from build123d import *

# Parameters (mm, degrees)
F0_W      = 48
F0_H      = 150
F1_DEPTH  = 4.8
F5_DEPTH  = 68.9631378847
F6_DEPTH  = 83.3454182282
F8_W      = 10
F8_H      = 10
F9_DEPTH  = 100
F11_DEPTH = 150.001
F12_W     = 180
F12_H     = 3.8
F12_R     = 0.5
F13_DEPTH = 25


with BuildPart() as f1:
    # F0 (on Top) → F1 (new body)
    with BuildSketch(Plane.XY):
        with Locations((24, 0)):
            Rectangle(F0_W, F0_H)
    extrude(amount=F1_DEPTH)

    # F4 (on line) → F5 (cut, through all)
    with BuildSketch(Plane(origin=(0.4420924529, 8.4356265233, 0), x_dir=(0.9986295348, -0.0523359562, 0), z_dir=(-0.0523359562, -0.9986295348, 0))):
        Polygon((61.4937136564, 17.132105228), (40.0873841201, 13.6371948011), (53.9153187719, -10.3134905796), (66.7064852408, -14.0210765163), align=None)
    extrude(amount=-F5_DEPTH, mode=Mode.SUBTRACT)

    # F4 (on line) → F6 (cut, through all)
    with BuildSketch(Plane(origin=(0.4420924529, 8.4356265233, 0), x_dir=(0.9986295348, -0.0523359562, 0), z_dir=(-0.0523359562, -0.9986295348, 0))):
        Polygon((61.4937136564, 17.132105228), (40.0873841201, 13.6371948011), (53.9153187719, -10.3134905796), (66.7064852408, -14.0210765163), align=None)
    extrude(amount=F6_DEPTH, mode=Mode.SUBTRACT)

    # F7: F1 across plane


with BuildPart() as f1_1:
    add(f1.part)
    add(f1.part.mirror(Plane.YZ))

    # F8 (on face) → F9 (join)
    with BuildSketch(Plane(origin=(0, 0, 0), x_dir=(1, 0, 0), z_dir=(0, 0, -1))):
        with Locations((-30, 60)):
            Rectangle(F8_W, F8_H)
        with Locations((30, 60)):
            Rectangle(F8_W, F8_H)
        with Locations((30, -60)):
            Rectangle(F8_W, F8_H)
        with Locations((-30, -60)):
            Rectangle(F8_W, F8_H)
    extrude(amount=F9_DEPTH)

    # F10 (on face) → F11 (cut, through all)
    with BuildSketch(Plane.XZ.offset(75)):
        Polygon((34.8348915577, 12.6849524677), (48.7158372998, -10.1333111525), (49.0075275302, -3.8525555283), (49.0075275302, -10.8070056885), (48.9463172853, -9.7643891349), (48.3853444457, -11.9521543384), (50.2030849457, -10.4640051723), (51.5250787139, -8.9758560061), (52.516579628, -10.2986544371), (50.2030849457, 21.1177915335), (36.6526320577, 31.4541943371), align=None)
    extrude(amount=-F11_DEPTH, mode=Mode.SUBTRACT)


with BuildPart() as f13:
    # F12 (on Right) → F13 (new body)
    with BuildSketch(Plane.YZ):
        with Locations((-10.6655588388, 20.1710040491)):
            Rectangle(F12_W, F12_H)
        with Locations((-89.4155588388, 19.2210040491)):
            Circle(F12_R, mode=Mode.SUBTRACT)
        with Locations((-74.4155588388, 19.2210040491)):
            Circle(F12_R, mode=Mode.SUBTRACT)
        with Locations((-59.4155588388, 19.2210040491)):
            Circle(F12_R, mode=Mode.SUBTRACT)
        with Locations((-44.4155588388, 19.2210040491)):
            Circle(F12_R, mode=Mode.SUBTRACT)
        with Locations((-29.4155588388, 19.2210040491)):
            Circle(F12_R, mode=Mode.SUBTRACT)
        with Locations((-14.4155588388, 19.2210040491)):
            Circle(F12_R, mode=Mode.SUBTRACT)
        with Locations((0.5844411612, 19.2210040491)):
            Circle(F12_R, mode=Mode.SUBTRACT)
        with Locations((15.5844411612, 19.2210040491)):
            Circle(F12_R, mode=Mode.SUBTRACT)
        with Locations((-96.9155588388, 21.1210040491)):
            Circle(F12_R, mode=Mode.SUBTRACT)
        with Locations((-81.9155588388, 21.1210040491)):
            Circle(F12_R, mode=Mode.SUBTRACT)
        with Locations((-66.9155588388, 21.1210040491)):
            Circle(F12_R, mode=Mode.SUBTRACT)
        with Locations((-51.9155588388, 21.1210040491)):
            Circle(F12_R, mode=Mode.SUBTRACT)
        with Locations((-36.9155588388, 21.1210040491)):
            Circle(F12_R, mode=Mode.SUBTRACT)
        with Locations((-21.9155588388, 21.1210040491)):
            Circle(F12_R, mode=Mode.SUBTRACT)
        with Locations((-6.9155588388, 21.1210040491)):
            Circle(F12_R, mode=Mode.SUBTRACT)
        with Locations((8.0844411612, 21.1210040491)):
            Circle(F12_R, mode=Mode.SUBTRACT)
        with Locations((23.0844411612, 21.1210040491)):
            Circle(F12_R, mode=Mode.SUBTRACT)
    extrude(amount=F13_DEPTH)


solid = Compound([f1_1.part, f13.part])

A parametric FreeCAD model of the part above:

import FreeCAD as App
import Part
import Sketcher

V = App.Vector
Q = App.Units.Quantity


def add_polygon(sketch, points):
    """Adds a closed chain of lines whose ends are joined by coincident constraints."""
    first, n = sketch.GeometryCount, len(points)
    for a, b in zip(points, points[1:] + points[:1]):
        sketch.addGeometry(Part.LineSegment(App.Vector(*a, 0), App.Vector(*b, 0)), False)
    for i in range(n):
        sketch.addConstraint(Sketcher.Constraint("Coincident", first + i, 2, first + (i + 1) % n, 1))

doc = App.newDocument("Part")
body = doc.addObject("PartDesign::Body", "Body")

sketch1 = body.newObject("Sketcher::SketchObject", "Sketch")
sketch1.AttachmentSupport = (doc.getObject("XY_Plane"), [""])
sketch1.MapMode = "FlatFace"
add_polygon(sketch1, [(0, 75), (0, -75), (48, -75), (48, 75)])
sketch1.addConstraint(Sketcher.Constraint("Vertical", 0))
sketch1.addConstraint(Sketcher.Constraint("Horizontal", 1))
sketch1.addConstraint(Sketcher.Constraint("Vertical", 2))
sketch1.addConstraint(Sketcher.Constraint("Horizontal", 3))
sketch1.addConstraint(Sketcher.Constraint("Symmetric", 0, 2, 3, 2, -1, 1))
sketch1.addConstraint(Sketcher.Constraint("DistanceX", 1, 1, 1, 2, Q("48 mm")))
sketch1.addConstraint(Sketcher.Constraint("DistanceY", 0, 2, 0, 1, Q("150 mm")))
pad1 = body.newObject("PartDesign::Pad", "Pad")
pad1.Profile = sketch1
pad1.Length = 4.8

sketch2 = body.newObject("Sketcher::SketchObject", "Sketch001")
sketch2.Placement = App.Placement(V(0.442092, 8.435627, 0), App.Rotation(V(0.998629535, -0.052335956, 0), V(0, 0, 1), V(-0.052335956, -0.998629535, 0), "ZXY"))
add_polygon(sketch2, [(61, 17), (40, 14), (54, -10), (67, -14)])
sketch2.addConstraint(Sketcher.Constraint("Angle", 1, Q("-60 deg")))
sketch2.addConstraint(Sketcher.Constraint("DistanceX", 0, 2, 2, 2, Q("26.619101 mm")))
sketch2.addConstraint(Sketcher.Constraint("Distance", 1, Q("27.655869 mm")))
sketch2.addConstraint(Sketcher.Constraint("Distance", 3, Q("31.58629 mm")))
sketch2.addConstraint(Sketcher.Constraint("DistanceX", -1, 1, 1, 2, Q("53.915319 mm")))
sketch2.addConstraint(Sketcher.Constraint("DistanceY", 1, 2, -1, 1, Q("10.313491 mm")))
sketch2.addConstraint(Sketcher.Constraint("DistanceY", 2, 2, 0, 2, Q("27.658271 mm")))
sketch2.addConstraint(Sketcher.Constraint("DistanceX", 0, 2, 3, 2, Q("21.40633 mm")))
pocket1 = body.newObject("PartDesign::Pocket", "Pocket")
pocket1.Profile = sketch2
pocket1.Type = "ThroughAll"

sketch3 = body.newObject("Sketcher::SketchObject", "Sketch002")
sketch3.Placement = App.Placement(V(0.442092, 8.435627, 0), App.Rotation(V(0.998629535, -0.052335956, 0), V(0, 0, 1), V(-0.052335956, -0.998629535, 0), "ZXY"))
add_polygon(sketch3, [(61, 17), (40, 14), (54, -10), (67, -14)])
sketch3.addConstraint(Sketcher.Constraint("Angle", 1, Q("-60 deg")))
sketch3.addConstraint(Sketcher.Constraint("DistanceX", 0, 2, 2, 2, Q("26.619101 mm")))
sketch3.addConstraint(Sketcher.Constraint("Distance", 1, Q("27.655869 mm")))
sketch3.addConstraint(Sketcher.Constraint("Distance", 3, Q("31.58629 mm")))
sketch3.addConstraint(Sketcher.Constraint("DistanceX", -1, 1, 1, 2, Q("53.915319 mm")))
sketch3.addConstraint(Sketcher.Constraint("DistanceY", 1, 2, -1, 1, Q("10.313491 mm")))
sketch3.addConstraint(Sketcher.Constraint("DistanceY", 2, 2, 0, 2, Q("27.658271 mm")))
sketch3.addConstraint(Sketcher.Constraint("DistanceX", 0, 2, 3, 2, Q("21.40633 mm")))
pocket2 = body.newObject("PartDesign::Pocket", "Pocket001")
pocket2.Profile = sketch3
pocket2.Type = "ThroughAll"
pocket2.Reversed = True
body2 = doc.addObject("PartDesign::Body", "Body001")
doc.recompute()

body2.BaseFeature = body
doc.recompute()

mirroring = doc.addObject("Part::Mirroring", "Mirroring")
mirroring.Source = body
mirroring.Base = V(0, 0, 0)
mirroring.Normal = V(1, 0, 0)
body3 = doc.addObject("PartDesign::Body", "Body002")
body3.BaseFeature = mirroring
boolean = body2.newObject("PartDesign::Boolean", "Boolean")
boolean.Type = "Fuse"
boolean.addObjects([body3])
doc.recompute()

sketch4 = body2.newObject("Sketcher::SketchObject", "Sketch003")
sketch4.AttachmentSupport = (doc.getObject("XY_Plane001"), [""])
sketch4.MapMode = "FlatFace"
add_polygon(sketch4, [(-35, -65), (-35, -55), (-25, -55), (-25, -65)])
add_polygon(sketch4, [(25, -65), (25, -55), (35, -55), (35, -65)])
add_polygon(sketch4, [(25, 55), (25, 65), (35, 65), (35, 55)])
add_polygon(sketch4, [(-35, 55), (-35, 65), (-25, 65), (-25, 55)])
sketch4.addConstraint(Sketcher.Constraint("Vertical", 0))
sketch4.addConstraint(Sketcher.Constraint("Horizontal", 1))
sketch4.addConstraint(Sketcher.Constraint("Vertical", 2))
sketch4.addConstraint(Sketcher.Constraint("Horizontal", 3))
sketch4.addConstraint(Sketcher.Constraint("Vertical", 4))
sketch4.addConstraint(Sketcher.Constraint("Horizontal", 5))
sketch4.addConstraint(Sketcher.Constraint("Vertical", 6))
sketch4.addConstraint(Sketcher.Constraint("Horizontal", 7))
sketch4.addConstraint(Sketcher.Constraint("Vertical", 8))
sketch4.addConstraint(Sketcher.Constraint("Horizontal", 9))
sketch4.addConstraint(Sketcher.Constraint("Vertical", 10))
sketch4.addConstraint(Sketcher.Constraint("Horizontal", 11))
sketch4.addConstraint(Sketcher.Constraint("Vertical", 12))
sketch4.addConstraint(Sketcher.Constraint("Horizontal", 13))
sketch4.addConstraint(Sketcher.Constraint("Vertical", 14))
sketch4.addConstraint(Sketcher.Constraint("Horizontal", 15))
sketch4.addConstraint(Sketcher.Constraint("Symmetric", 2, 2, 8, 2, -1, 1))
sketch4.addConstraint(Sketcher.Constraint("Symmetric", 0, 2, 10, 2, -1, 1))
sketch4.addConstraint(Sketcher.Constraint("Symmetric", 6, 2, 12, 2, -1, 1))
sketch4.addConstraint(Sketcher.Constraint("Symmetric", 4, 2, 14, 2, -1, 1))
sketch4.addConstraint(Sketcher.Constraint("Symmetric", 1, 2, 4, 2, -2))
sketch4.addConstraint(Sketcher.Constraint("Symmetric", 3, 2, 6, 2, -2))
sketch4.addConstraint(Sketcher.Constraint("Equal", 15, 0))
sketch4.addConstraint(Sketcher.Constraint("DistanceX", 1, 1, 1, 2, Q("10 mm")))
sketch4.addConstraint(Sketcher.Constraint("DistanceX", 0, 2, -1, 1, Q("35 mm")))
sketch4.addConstraint(Sketcher.Constraint("DistanceY", 0, 2, -1, 1, Q("55 mm")))
pad2 = body2.newObject("PartDesign::Pad", "Pad001")
pad2.Profile = sketch4
pad2.Length = 100
pad2.Reversed = True

sketch5 = body2.newObject("Sketcher::SketchObject", "Sketch004")
sketch5.AttachmentSupport = (doc.getObject("XZ_Plane001"), [""])
sketch5.MapMode = "FlatFace"
sketch5.AttachmentOffset = App.Placement(V(0, 0, 75), App.Rotation())
add_polygon(sketch5, [(34.8, 12.7), (48.7, -10.1), (49, -3.9), (49, -10.8), (48.9, -9.8), (48.4, -12), (50.2, -10.5), (51.5, -9), (52.5, -10.3), (50.2, 21.1), (36.7, 31.5)])
sketch5.addConstraint(Sketcher.Constraint("Vertical", 2))
sketch5.addConstraint(Sketcher.Constraint("Vertical", 5, 2, 8, 2))
sketch5.addConstraint(Sketcher.Constraint("DistanceY", 2, 2, 5, 2, Q("0.343001 mm")))
sketch5.addConstraint(Sketcher.Constraint("DistanceY", 2, 2, 2, 1, Q("6.95445 mm")))
sketch5.addConstraint(Sketcher.Constraint("DistanceY", 4, 2, 1, 2, Q("8.099599 mm")))
sketch5.addConstraint(Sketcher.Constraint("DistanceY", 4, 2, 6, 2, Q("2.976298 mm")))
sketch5.addConstraint(Sketcher.Constraint("DistanceX", 6, 2, 7, 2, Q("0.991501 mm")))
sketch5.addConstraint(Sketcher.Constraint("DistanceY", 7, 2, 6, 2, Q("1.322798 mm")))
sketch5.addConstraint(Sketcher.Constraint("Distance", 3, Q("1.044412 mm")))
sketch5.addConstraint(Sketcher.Constraint("Distance", 4, Q("2.258541 mm")))
sketch5.addConstraint(Sketcher.Constraint("Distance", 6, Q("1.990541 mm")))
sketch5.addConstraint(Sketcher.Constraint("Distance", 9, Q("17.04277 mm")))
sketch5.addConstraint(Sketcher.Constraint("DistanceY", 0, 2, -1, 1, Q("10.133311 mm")))
sketch5.addConstraint(Sketcher.Constraint("DistanceY", 3, 2, -1, 1, Q("9.764389 mm")))
sketch5.addConstraint(Sketcher.Constraint("DistanceX", -1, 1, 6, 2, Q("51.525079 mm")))
sketch5.addConstraint(Sketcher.Constraint("DistanceY", -1, 1, 8, 2, Q("21.117792 mm")))
sketch5.addConstraint(Sketcher.Constraint("DistanceX", -1, 1, 10, 2, Q("34.834892 mm")))
sketch5.addConstraint(Sketcher.Constraint("DistanceX", 0, 2, 1, 2, Q("0.29169 mm")))
sketch5.addConstraint(Sketcher.Constraint("DistanceX", 0, 2, 3, 2, Q("0.23048 mm")))
sketch5.addConstraint(Sketcher.Constraint("DistanceX", 4, 2, 5, 2, Q("1.81774 mm")))
sketch5.addConstraint(Sketcher.Constraint("DistanceY", 1, 2, 9, 2, Q("35.30675 mm")))
sketch5.addConstraint(Sketcher.Constraint("DistanceY", 10, 2, 8, 2, Q("8.432839 mm")))
pocket3 = body2.newObject("PartDesign::Pocket", "Pocket002")
pocket3.Profile = sketch5
pocket3.Type = "ThroughAll"
body4 = doc.addObject("PartDesign::Body", "Body003")

sketch6 = body4.newObject("Sketcher::SketchObject", "Sketch005")
sketch6.AttachmentSupport = (doc.getObject("YZ_Plane003"), [""])
sketch6.MapMode = "FlatFace"
add_polygon(sketch6, [(-100.7, 22.1), (-100.7, 18.3), (79.3, 18.3), (79.3, 22.1)])
sketch6.addGeometry(Part.Circle(V(-89.4, 19.2, 0), V(0, 0, 1), 0.5), False)
sketch6.addGeometry(Part.Circle(V(-74.4, 19.2, 0), V(0, 0, 1), 0.5), False)
sketch6.addGeometry(Part.Circle(V(-59.4, 19.2, 0), V(0, 0, 1), 0.5), False)
sketch6.addGeometry(Part.Circle(V(-44.4, 19.2, 0), V(0, 0, 1), 0.5), False)
sketch6.addGeometry(Part.Circle(V(-29.4, 19.2, 0), V(0, 0, 1), 0.5), False)
sketch6.addGeometry(Part.Circle(V(-14.4, 19.2, 0), V(0, 0, 1), 0.5), False)
sketch6.addGeometry(Part.Circle(V(0.6, 19.2, 0), V(0, 0, 1), 0.5), False)
sketch6.addGeometry(Part.Circle(V(15.6, 19.2, 0), V(0, 0, 1), 0.5), False)
sketch6.addGeometry(Part.Circle(V(-96.9, 21.1, 0), V(0, 0, 1), 0.5), False)
sketch6.addGeometry(Part.Circle(V(-81.9, 21.1, 0), V(0, 0, 1), 0.5), False)
sketch6.addGeometry(Part.Circle(V(-66.9, 21.1, 0), V(0, 0, 1), 0.5), False)
sketch6.addGeometry(Part.Circle(V(-51.9, 21.1, 0), V(0, 0, 1), 0.5), False)
sketch6.addGeometry(Part.Circle(V(-36.9, 21.1, 0), V(0, 0, 1), 0.5), False)
sketch6.addGeometry(Part.Circle(V(-21.9, 21.1, 0), V(0, 0, 1), 0.5), False)
sketch6.addGeometry(Part.Circle(V(-6.9, 21.1, 0), V(0, 0, 1), 0.5), False)
sketch6.addGeometry(Part.Circle(V(8.1, 21.1, 0), V(0, 0, 1), 0.5), False)
sketch6.addGeometry(Part.Circle(V(23.1, 21.1, 0), V(0, 0, 1), 0.5), False)
sketch6.addConstraint(Sketcher.Constraint("Vertical", 0))
sketch6.addConstraint(Sketcher.Constraint("Horizontal", 1))
sketch6.addConstraint(Sketcher.Constraint("Vertical", 2))
sketch6.addConstraint(Sketcher.Constraint("Horizontal", 3))
sketch6.addConstraint(Sketcher.Constraint("Equal", 4, 5))
sketch6.addConstraint(Sketcher.Constraint("Equal", 5, 6))
sketch6.addConstraint(Sketcher.Constraint("Equal", 6, 7))
sketch6.addConstraint(Sketcher.Constraint("Equal", 7, 8))
sketch6.addConstraint(Sketcher.Constraint("Equal", 8, 9))
sketch6.addConstraint(Sketcher.Constraint("Equal", 9, 10))
sketch6.addConstraint(Sketcher.Constraint("Equal", 10, 11))
sketch6.addConstraint(Sketcher.Constraint("Equal", 11, 12))
sketch6.addConstraint(Sketcher.Constraint("Equal", 12, 13))
sketch6.addConstraint(Sketcher.Constraint("Equal", 13, 14))
sketch6.addConstraint(Sketcher.Constraint("Equal", 14, 15))
sketch6.addConstraint(Sketcher.Constraint("Equal", 15, 16))
sketch6.addConstraint(Sketcher.Constraint("Equal", 16, 17))
sketch6.addConstraint(Sketcher.Constraint("Equal", 17, 18))
sketch6.addConstraint(Sketcher.Constraint("Equal", 18, 19))
sketch6.addConstraint(Sketcher.Constraint("Equal", 19, 20))
sketch6.addConstraint(Sketcher.Constraint("Horizontal", 4, 3, 5, 3))
sketch6.addConstraint(Sketcher.Constraint("Horizontal", 5, 3, 6, 3))
sketch6.addConstraint(Sketcher.Constraint("Horizontal", 6, 3, 7, 3))
sketch6.addConstraint(Sketcher.Constraint("Horizontal", 7, 3, 8, 3))
sketch6.addConstraint(Sketcher.Constraint("Horizontal", 8, 3, 9, 3))
sketch6.addConstraint(Sketcher.Constraint("Horizontal", 9, 3, 10, 3))
sketch6.addConstraint(Sketcher.Constraint("Horizontal", 10, 3, 11, 3))
sketch6.addConstraint(Sketcher.Constraint("Horizontal", 12, 3, 13, 3))
sketch6.addConstraint(Sketcher.Constraint("Horizontal", 13, 3, 14, 3))
sketch6.addConstraint(Sketcher.Constraint("Horizontal", 14, 3, 15, 3))
sketch6.addConstraint(Sketcher.Constraint("Horizontal", 15, 3, 16, 3))
sketch6.addConstraint(Sketcher.Constraint("Horizontal", 16, 3, 17, 3))
sketch6.addConstraint(Sketcher.Constraint("Horizontal", 17, 3, 18, 3))
sketch6.addConstraint(Sketcher.Constraint("Horizontal", 18, 3, 19, 3))
sketch6.addConstraint(Sketcher.Constraint("Horizontal", 19, 3, 20, 3))
sketch6.addConstraint(Sketcher.Constraint("Diameter", 4, Q("1 mm")))
sketch6.addConstraint(Sketcher.Constraint("DistanceX", 1, 1, 1, 2, Q("180 mm")))
sketch6.addConstraint(Sketcher.Constraint("DistanceY", 0, 2, 0, 1, Q("3.8 mm")))
sketch6.addConstraint(Sketcher.Constraint("DistanceX", 4, 3, 5, 3, Q("15 mm")))
sketch6.addConstraint(Sketcher.Constraint("DistanceX", 5, 3, 6, 3, Q("15 mm")))
sketch6.addConstraint(Sketcher.Constraint("DistanceX", 6, 3, 7, 3, Q("15 mm")))
sketch6.addConstraint(Sketcher.Constraint("DistanceX", 7, 3, 8, 3, Q("15 mm")))
sketch6.addConstraint(Sketcher.Constraint("DistanceX", 8, 3, 9, 3, Q("15 mm")))
sketch6.addConstraint(Sketcher.Constraint("DistanceX", 9, 3, 10, 3, Q("15 mm")))
sketch6.addConstraint(Sketcher.Constraint("DistanceX", 10, 3, 11, 3, Q("15 mm")))
sketch6.addConstraint(Sketcher.Constraint("DistanceX", 12, 3, 13, 3, Q("15 mm")))
sketch6.addConstraint(Sketcher.Constraint("DistanceX", 13, 3, 14, 3, Q("15 mm")))
sketch6.addConstraint(Sketcher.Constraint("DistanceX", 14, 3, 15, 3, Q("15 mm")))
sketch6.addConstraint(Sketcher.Constraint("DistanceX", 15, 3, 16, 3, Q("15 mm")))
sketch6.addConstraint(Sketcher.Constraint("DistanceX", 16, 3, 17, 3, Q("15 mm")))
sketch6.addConstraint(Sketcher.Constraint("DistanceX", 17, 3, 18, 3, Q("15 mm")))
sketch6.addConstraint(Sketcher.Constraint("DistanceX", 18, 3, 19, 3, Q("15 mm")))
sketch6.addConstraint(Sketcher.Constraint("DistanceX", 19, 3, 20, 3, Q("15 mm")))
sketch6.addConstraint(Sketcher.Constraint("DistanceX", 12, 3, 4, 3, Q("7.5 mm")))
sketch6.addConstraint(Sketcher.Constraint("DistanceY", 4, 3, 12, 3, Q("1.9 mm")))
sketch6.addConstraint(Sketcher.Constraint("DistanceX", 0, 2, 12, 3, Q("3.75 mm")))
sketch6.addConstraint(Sketcher.Constraint("DistanceY", 0, 2, 12, 3, Q("2.85 mm")))
sketch6.addConstraint(Sketcher.Constraint("DistanceX", 4, 3, -1, 1, Q("89.415559 mm")))
sketch6.addConstraint(Sketcher.Constraint("DistanceY", -1, 1, 4, 3, Q("19.221004 mm")))
pad3 = body4.newObject("PartDesign::Pad", "Pad002")
pad3.Profile = sketch6
pad3.Length = 25
mirroring.Visibility = False

doc.recompute()
